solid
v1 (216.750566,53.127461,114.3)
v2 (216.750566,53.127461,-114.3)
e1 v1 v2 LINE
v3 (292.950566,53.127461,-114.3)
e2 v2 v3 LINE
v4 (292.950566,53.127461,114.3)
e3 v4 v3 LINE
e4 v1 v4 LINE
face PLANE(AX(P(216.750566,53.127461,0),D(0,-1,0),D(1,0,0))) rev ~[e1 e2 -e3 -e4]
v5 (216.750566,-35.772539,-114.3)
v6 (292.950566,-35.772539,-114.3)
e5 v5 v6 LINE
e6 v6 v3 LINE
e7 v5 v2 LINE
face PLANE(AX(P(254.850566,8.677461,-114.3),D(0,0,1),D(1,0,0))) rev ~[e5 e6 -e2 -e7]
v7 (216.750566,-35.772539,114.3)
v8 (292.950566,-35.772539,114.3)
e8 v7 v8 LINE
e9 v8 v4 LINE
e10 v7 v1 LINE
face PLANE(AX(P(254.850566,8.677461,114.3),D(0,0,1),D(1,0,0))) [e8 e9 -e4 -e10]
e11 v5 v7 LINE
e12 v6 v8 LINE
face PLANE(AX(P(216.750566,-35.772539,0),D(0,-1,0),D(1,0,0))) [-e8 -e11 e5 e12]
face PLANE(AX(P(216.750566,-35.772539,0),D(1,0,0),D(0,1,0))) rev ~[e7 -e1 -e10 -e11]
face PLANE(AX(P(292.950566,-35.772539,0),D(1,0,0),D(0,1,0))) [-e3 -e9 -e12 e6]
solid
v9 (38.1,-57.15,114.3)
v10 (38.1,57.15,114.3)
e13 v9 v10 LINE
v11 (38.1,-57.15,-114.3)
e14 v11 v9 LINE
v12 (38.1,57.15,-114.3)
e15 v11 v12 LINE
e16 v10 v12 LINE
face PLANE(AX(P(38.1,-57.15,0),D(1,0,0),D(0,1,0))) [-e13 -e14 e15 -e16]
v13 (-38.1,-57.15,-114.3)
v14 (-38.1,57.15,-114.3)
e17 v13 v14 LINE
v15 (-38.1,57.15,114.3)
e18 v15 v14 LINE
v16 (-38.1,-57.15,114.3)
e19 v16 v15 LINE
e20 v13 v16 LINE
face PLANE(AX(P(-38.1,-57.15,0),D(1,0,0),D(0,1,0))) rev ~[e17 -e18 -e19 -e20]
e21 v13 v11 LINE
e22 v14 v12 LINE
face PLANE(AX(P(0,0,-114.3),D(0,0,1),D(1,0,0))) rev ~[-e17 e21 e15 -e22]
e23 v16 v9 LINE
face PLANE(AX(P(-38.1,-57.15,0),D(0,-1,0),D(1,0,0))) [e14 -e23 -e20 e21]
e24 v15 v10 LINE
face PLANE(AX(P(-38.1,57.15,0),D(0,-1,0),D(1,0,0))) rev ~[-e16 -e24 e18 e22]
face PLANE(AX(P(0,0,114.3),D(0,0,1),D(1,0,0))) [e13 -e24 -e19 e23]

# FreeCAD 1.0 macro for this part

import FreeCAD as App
import Part
import Sketcher

V = App.Vector
Q = App.Units.Quantity

doc = App.newDocument("Part")
body = doc.addObject("PartDesign::Body", "Body")

sketch1 = body.newObject("Sketcher::SketchObject", "Sketch")
sketch1.AttachmentSupport = (doc.getObject("XY_Plane"), [""])
sketch1.MapMode = "FlatFace"
sketch1.addGeometry([
    Part.LineSegment(V(-38.1, 57.15, 0), V(-38.1, -57.15, 0)),
    Part.LineSegment(V(-38.1, -57.15, 0), V(38.1, -57.15, 0)),
    Part.LineSegment(V(38.1, -57.15, 0), V(38.1, 57.15, 0)),
    Part.LineSegment(V(38.1, 57.15, 0), V(-38.1, 57.15, 0)),
], False)
sketch1.addConstraint([
    Sketcher.Constraint("Coincident", 0, 2, 1, 1),
    Sketcher.Constraint("Coincident", 1, 2, 2, 1),
    Sketcher.Constraint("Coincident", 2, 2, 3, 1),
    Sketcher.Constraint("Coincident", 3, 2, 0, 1),
    Sketcher.Constraint("Vertical", 0),
    Sketcher.Constraint("Horizontal", 1),
    Sketcher.Constraint("Vertical", 2),
    Sketcher.Constraint("Horizontal", 3),
    Sketcher.Constraint("Symmetric", 0, 2, 2, 2, -1, 1),
    Sketcher.Constraint("DistanceX", 1, 1, 1, 2, Q("3 in")),
    Sketcher.Constraint("DistanceY", 0, 2, 0, 1, Q("4.5 in")),
])
pad1 = body.newObject("PartDesign::Pad", "Pad")
pad1.Profile = sketch1
pad1.Length = Q("9 in")
pad1.Midplane = True
body2 = doc.addObject("PartDesign::Body", "Body001")

sketch2 = body2.newObject("Sketcher::SketchObject", "Sketch001")
sketch2.AttachmentSupport = (doc.getObject("XY_Plane001"), [""])
sketch2.MapMode = "FlatFace"
sketch2.addGeometry([
    Part.LineSegment(V(216.750566, 53.127461, 0), V(216.750566, -35.772539, 0)),
    Part.LineSegment(V(216.750566, -35.772539, 0), V(292.950566, -35.772539, 0)),
    Part.LineSegment(V(292.950566, -35.772539, 0), V(292.950566, 53.127461, 0)),
    Part.LineSegment(V(292.950566, 53.127461, 0), V(216.750566, 53.127461, 0)),
], False)
sketch2.addConstraint([
    Sketcher.Constraint("Coincident", 0, 2, 1, 1),
    Sketcher.Constraint("Coincident", 1, 2, 2, 1),
    Sketcher.Constraint("Coincident", 2, 2, 3, 1),
    Sketcher.Constraint("Coincident", 3, 2, 0, 1),
    Sketcher.Constraint("Vertical", 0),
    Sketcher.Constraint("Horizontal", 1),
    Sketcher.Constraint("Vertical", 2),
    Sketcher.Constraint("Horizontal", 3),
    Sketcher.Constraint("DistanceX", 1, 1, 1, 2, Q("3 in")),
    Sketcher.Constraint("DistanceY", 0, 2, 0, 1, Q("3.5 in")),
    Sketcher.Constraint("DistanceY", 0, 2, -1, 1, Q("35.772539 mm")),
    Sketcher.Constraint("DistanceX", -1, 1, 0, 2, Q("216.750566 mm")),
])
pad2 = body2.newObject("PartDesign::Pad", "Pad001")
pad2.Profile = sketch2
pad2.Length = Q("9 in")
pad2.Midplane = True

doc.recompute()
